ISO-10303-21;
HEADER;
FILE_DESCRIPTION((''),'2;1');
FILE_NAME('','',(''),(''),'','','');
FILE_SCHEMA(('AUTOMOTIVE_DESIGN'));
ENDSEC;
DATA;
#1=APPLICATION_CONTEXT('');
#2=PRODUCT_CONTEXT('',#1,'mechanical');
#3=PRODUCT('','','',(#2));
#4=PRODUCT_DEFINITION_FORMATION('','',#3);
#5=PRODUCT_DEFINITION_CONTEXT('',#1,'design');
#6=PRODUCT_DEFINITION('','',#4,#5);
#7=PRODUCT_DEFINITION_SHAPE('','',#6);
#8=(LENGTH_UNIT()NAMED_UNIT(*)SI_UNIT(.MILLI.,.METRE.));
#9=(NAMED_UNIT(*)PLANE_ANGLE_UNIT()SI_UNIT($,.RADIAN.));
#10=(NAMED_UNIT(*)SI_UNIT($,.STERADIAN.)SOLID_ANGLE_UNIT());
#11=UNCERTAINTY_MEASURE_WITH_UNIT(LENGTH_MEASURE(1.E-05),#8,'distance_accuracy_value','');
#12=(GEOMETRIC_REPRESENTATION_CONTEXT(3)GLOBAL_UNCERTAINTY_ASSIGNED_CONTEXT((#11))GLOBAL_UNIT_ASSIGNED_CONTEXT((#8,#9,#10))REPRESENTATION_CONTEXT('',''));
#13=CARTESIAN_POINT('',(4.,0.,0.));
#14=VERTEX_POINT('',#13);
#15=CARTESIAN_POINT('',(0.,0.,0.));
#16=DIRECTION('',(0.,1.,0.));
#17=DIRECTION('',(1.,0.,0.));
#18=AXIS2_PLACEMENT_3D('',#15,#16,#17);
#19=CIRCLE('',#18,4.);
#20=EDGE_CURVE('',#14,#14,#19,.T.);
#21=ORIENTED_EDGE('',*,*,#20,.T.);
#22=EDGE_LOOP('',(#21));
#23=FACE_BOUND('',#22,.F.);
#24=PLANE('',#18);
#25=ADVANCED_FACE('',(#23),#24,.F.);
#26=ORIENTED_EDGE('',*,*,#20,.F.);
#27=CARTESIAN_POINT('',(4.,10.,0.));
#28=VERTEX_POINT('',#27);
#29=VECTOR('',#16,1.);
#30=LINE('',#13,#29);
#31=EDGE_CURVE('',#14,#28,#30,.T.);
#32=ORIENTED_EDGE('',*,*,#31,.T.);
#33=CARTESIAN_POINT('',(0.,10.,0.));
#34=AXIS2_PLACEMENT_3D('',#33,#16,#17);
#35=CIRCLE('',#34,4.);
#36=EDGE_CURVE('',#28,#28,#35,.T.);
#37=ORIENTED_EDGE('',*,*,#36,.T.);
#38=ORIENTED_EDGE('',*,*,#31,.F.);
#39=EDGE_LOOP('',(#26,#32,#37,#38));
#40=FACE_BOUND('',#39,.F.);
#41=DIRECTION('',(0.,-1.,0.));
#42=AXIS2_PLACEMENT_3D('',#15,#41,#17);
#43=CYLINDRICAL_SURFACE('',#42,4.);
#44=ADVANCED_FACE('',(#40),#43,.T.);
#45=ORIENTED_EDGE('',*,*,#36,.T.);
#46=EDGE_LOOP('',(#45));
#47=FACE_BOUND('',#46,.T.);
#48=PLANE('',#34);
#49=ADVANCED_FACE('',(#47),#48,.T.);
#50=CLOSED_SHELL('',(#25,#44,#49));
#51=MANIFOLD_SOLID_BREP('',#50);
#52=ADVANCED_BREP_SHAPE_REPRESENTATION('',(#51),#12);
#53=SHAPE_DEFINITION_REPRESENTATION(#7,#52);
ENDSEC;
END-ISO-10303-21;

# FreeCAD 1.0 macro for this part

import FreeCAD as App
import Part
import Sketcher

doc = App.newDocument("Part")
body = doc.addObject("PartDesign::Body", "Body")

sketch1 = body.newObject("Sketcher::SketchObject", "Sketch")
sketch1.AttachmentSupport = (doc.getObject("XZ_Plane"), [""])
sketch1.MapMode = "FlatFace"
sketch1.addGeometry(Part.Circle(App.Vector(0, 0, 0), App.Vector(0, 0, 1), 4), False)
sketch1.addConstraint([
    Sketcher.Constraint("Coincident", 0, 3, -1, 1),
    Sketcher.Constraint("Diameter", 0, 8.0),
])
pad1 = body.newObject("PartDesign::Pad", "Pad")
pad1.Profile = sketch1
pad1.Length = 10
pad1.Reversed = True

doc.recompute()
